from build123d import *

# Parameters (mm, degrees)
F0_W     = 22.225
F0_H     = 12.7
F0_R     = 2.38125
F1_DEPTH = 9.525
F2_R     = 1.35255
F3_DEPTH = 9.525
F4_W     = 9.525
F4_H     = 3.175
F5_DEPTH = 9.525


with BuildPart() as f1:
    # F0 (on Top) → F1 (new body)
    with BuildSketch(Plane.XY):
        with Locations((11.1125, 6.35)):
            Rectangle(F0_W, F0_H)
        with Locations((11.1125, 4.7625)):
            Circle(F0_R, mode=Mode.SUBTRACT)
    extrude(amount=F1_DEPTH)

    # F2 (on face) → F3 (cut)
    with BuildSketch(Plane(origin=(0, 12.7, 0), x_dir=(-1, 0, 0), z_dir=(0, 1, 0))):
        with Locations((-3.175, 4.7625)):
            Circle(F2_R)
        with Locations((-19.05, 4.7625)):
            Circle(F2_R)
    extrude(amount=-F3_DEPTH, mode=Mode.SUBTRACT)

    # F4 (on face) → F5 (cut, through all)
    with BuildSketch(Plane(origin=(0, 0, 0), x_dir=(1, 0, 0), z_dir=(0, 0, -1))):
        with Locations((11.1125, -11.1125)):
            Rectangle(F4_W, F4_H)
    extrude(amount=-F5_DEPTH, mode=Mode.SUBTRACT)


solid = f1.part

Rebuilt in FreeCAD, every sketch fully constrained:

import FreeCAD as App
import Part
import Sketcher
from FreeCAD import Vector
Q = App.Units.Quantity

doc = App.newDocument("Part")
body = doc.addObject("PartDesign::Body", "Body")

# Sketch on XY plane
sketch1 = doc.addObject("Sketcher::SketchObject", "Sketch")
body.addObject(sketch1)
sketch1.AttachmentSupport = (doc.XY_Plane, [""])
sketch1.MapMode = "FlatFace"
sketch1.addGeometry(Part.LineSegment(Vector(0, 12.7, 0), Vector(0, 0, 0)), False)
sketch1.addGeometry(Part.LineSegment(Vector(0, 0, 0), Vector(22.2, 0, 0)), False)
sketch1.addGeometry(Part.LineSegment(Vector(22.2, 0, 0), Vector(22.2, 12.7, 0)), False)
sketch1.addGeometry(Part.LineSegment(Vector(22.2, 12.7, 0), Vector(0, 12.7, 0)), False)
sketch1.addGeometry(Part.Circle(Vector(11.1, 4.8, 0), Vector(0, 0, 1), 2.4), False)
sketch1.addConstraint(Sketcher.Constraint("Coincident", 0, 2, 1, 1))
sketch1.addConstraint(Sketcher.Constraint("Coincident", 1, 2, 2, 1))
sketch1.addConstraint(Sketcher.Constraint("Coincident", 2, 2, 3, 1))
sketch1.addConstraint(Sketcher.Constraint("Coincident", 3, 2, 0, 1))
sketch1.addConstraint(Sketcher.Constraint("Vertical", 0))
sketch1.addConstraint(Sketcher.Constraint("Horizontal", 1))
sketch1.addConstraint(Sketcher.Constraint("Vertical", 2))
sketch1.addConstraint(Sketcher.Constraint("Horizontal", 3))
sketch1.addConstraint(Sketcher.Constraint("Coincident", 0, 2, -1, 1))
sketch1.addConstraint(Sketcher.Constraint("Diameter", 4, Q("0.1875 in")))
sketch1.addConstraint(Sketcher.Constraint("DistanceY", 0, 2, 0, 1, Q("0.5 in")))
sketch1.addConstraint(Sketcher.Constraint("DistanceX", 1, 1, 1, 2, Q("0.875 in")))
sketch1.addConstraint(Sketcher.Constraint("DistanceX", -1, 1, 4, 3, Q("0.4375 in")))
sketch1.addConstraint(Sketcher.Constraint("DistanceY", -1, 1, 4, 3, Q("0.1875 in")))
pad1 = doc.addObject("PartDesign::Pad", "Pad")
body.addObject(pad1)
pad1.Profile = sketch1
pad1.Length = Q("0.375 in")

# Sketch on XZ plane
sketch2 = doc.addObject("Sketcher::SketchObject", "Sketch001")
body.addObject(sketch2)
sketch2.AttachmentSupport = (doc.XZ_Plane, [""])
sketch2.MapMode = "FlatFace"
sketch2.AttachmentOffset = App.Placement(Vector(0, 0, -0.5 * 25.4), App.Rotation())
sketch2.addGeometry(Part.Circle(Vector(3.2, 4.8, 0), Vector(0, 0, 1), 1.4), False)
sketch2.addGeometry(Part.Circle(Vector(19.1, 4.8, 0), Vector(0, 0, 1), 1.4), False)
sketch2.addConstraint(Sketcher.Constraint("Equal", 0, 1))
sketch2.addConstraint(Sketcher.Constraint("Horizontal", 0, 3, 1, 3))
sketch2.addConstraint(Sketcher.Constraint("Diameter", 0, Q("0.1065 in")))
sketch2.addConstraint(Sketcher.Constraint("DistanceX", -1, 1, 1, 3, Q("0.75 in")))
sketch2.addConstraint(Sketcher.Constraint("DistanceX", -1, 1, 0, 3, Q("0.125 in")))
sketch2.addConstraint(Sketcher.Constraint("DistanceY", -1, 1, 0, 3, Q("0.1875 in")))
pocket1 = doc.addObject("PartDesign::Pocket", "Pocket")
body.addObject(pocket1)
pocket1.Profile = sketch2
pocket1.Length = Q("0.375 in")
pocket1.Reversed = True

# Sketch on XY plane
sketch3 = doc.addObject("Sketcher::SketchObject", "Sketch002")
body.addObject(sketch3)
sketch3.AttachmentSupport = (doc.XY_Plane, [""])
sketch3.MapMode = "FlatFace"
sketch3.addGeometry(Part.LineSegment(Vector(6.3, 9.5, 0), Vector(6.3, 12.7, 0)), False)
sketch3.addGeometry(Part.LineSegment(Vector(6.3, 12.7, 0), Vector(15.9, 12.7, 0)), False)
sketch3.addGeometry(Part.LineSegment(Vector(15.9, 12.7, 0), Vector(15.9, 9.5, 0)), False)
sketch3.addGeometry(Part.LineSegment(Vector(15.9, 9.5, 0), Vector(6.3, 9.5, 0)), False)
sketch3.addConstraint(Sketcher.Constraint("Coincident", 0, 2, 1, 1))
sketch3.addConstraint(Sketcher.Constraint("Coincident", 1, 2, 2, 1))
sketch3.addConstraint(Sketcher.Constraint("Coincident", 2, 2, 3, 1))
sketch3.addConstraint(Sketcher.Constraint("Coincident", 3, 2, 0, 1))
sketch3.addConstraint(Sketcher.Constraint("Vertical", 0))
sketch3.addConstraint(Sketcher.Constraint("Horizontal", 1))
sketch3.addConstraint(Sketcher.Constraint("Vertical", 2))
sketch3.addConstraint(Sketcher.Constraint("Horizontal", 3))
sketch3.addConstraint(Sketcher.Constraint("DistanceY", -1, 1, 0, 2, Q("0.5 in")))
sketch3.addConstraint(Sketcher.Constraint("DistanceX", 1, 1, 1, 2, Q("0.375 in")))
sketch3.addConstraint(Sketcher.Constraint("DistanceY", 0, 1, 0, 2, Q("0.125 in")))
sketch3.addConstraint(Sketcher.Constraint("DistanceX", -1, 1, 0, 2, Q("0.25 in")))
pocket2 = doc.addObject("PartDesign::Pocket", "Pocket001")
body.addObject(pocket2)
pocket2.Profile = sketch3
pocket2.Type = "ThroughAll"
pocket2.Reversed = True

doc.recompute()
